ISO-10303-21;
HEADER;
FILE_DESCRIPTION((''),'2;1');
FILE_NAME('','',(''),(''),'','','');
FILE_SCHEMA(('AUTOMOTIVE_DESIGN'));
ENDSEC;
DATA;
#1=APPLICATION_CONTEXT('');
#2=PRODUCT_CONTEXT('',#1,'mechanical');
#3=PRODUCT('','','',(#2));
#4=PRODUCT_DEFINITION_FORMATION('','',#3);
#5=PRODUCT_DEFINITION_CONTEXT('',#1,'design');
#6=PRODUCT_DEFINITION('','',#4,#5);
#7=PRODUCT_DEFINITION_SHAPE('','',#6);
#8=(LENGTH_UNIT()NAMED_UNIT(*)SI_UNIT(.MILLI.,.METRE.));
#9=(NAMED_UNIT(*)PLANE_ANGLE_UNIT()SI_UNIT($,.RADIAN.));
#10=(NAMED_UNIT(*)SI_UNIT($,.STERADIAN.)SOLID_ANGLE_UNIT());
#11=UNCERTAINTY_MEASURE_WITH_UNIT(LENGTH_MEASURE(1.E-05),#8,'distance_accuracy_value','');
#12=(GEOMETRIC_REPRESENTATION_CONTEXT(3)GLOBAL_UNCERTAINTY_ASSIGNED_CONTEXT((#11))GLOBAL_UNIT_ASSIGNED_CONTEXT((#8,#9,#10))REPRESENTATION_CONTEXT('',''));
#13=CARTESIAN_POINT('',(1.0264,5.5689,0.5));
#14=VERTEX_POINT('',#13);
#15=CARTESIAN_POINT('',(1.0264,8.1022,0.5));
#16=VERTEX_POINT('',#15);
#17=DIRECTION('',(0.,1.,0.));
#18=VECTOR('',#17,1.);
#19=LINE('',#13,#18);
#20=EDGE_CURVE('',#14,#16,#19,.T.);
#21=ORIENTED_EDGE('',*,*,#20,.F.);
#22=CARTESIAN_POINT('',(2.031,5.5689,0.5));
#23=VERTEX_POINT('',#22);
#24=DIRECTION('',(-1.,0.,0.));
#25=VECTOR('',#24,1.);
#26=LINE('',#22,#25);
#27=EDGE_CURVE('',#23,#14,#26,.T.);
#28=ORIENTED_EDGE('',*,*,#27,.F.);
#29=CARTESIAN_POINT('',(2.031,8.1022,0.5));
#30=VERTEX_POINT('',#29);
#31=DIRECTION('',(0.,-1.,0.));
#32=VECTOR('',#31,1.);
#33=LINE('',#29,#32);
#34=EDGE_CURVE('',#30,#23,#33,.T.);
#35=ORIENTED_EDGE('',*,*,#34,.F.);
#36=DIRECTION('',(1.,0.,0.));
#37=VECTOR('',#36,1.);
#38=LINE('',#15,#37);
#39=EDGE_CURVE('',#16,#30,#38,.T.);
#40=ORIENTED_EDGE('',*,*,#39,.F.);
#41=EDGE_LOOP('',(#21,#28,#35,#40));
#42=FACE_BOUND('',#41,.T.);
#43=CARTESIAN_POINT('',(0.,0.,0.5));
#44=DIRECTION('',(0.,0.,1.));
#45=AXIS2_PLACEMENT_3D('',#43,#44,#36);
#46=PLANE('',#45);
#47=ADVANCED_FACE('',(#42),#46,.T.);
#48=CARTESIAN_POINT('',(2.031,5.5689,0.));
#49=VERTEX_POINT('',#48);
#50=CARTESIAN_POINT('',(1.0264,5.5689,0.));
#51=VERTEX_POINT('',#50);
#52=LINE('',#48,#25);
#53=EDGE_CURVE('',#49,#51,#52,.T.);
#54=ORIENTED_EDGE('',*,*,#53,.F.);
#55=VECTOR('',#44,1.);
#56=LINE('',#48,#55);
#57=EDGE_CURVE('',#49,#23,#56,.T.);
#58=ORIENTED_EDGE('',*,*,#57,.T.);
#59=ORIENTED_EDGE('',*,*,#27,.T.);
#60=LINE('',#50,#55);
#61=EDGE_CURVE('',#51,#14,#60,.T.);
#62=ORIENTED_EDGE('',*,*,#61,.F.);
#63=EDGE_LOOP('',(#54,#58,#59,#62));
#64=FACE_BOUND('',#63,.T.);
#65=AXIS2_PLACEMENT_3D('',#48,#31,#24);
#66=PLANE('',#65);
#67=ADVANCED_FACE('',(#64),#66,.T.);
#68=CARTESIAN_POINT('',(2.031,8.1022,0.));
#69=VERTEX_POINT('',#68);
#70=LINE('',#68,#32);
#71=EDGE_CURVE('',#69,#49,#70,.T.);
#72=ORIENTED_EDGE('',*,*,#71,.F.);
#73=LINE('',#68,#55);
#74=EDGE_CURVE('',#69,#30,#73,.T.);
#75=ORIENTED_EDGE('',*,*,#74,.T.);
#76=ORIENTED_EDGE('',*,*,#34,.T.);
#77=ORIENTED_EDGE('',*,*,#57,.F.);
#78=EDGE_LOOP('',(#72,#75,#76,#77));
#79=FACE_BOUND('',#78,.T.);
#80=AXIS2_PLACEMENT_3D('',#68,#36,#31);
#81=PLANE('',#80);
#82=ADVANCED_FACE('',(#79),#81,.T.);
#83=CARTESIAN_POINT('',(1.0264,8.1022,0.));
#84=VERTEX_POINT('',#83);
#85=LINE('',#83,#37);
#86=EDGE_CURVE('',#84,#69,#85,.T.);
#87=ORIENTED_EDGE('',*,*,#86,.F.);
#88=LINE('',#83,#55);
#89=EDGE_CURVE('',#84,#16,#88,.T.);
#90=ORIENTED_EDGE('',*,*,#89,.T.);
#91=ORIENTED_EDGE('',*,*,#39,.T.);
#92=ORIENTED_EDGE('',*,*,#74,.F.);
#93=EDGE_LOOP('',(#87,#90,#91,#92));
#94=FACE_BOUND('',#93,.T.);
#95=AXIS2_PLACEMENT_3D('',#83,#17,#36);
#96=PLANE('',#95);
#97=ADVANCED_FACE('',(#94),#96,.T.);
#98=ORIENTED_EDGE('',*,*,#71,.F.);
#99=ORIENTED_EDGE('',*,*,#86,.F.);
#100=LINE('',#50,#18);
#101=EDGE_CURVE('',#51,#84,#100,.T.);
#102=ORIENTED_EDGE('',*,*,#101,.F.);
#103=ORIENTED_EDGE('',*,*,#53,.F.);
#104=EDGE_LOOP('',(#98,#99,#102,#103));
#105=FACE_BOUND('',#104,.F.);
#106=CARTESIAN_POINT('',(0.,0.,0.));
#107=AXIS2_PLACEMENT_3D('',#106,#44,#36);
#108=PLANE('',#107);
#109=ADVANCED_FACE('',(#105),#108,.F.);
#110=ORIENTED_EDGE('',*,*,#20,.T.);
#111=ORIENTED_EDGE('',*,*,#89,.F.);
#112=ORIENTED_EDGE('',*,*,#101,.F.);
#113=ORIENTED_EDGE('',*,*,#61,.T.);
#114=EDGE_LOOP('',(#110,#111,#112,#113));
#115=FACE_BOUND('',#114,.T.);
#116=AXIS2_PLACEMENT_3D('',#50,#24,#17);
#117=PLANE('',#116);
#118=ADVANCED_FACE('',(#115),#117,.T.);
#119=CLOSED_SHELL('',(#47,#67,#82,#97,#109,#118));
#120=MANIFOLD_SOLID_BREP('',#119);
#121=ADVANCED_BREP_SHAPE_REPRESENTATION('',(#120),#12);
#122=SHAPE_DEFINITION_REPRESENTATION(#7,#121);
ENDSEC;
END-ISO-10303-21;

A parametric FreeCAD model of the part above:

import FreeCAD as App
import Part
import Sketcher

V = App.Vector

doc = App.newDocument("Part")
params = doc.addObject("Spreadsheet::Sheet", "Params")
for row, (alias, value) in enumerate([
    ("pad1_length", "0.5 mm"),
], start=1):
    params.set(f"A{row}", alias)
    params.set(f"B{row}", "=" + value)
    params.setAlias(f"B{row}", alias)

body = doc.addObject("PartDesign::Body", "Body")

# Sketch on XY plane
sketch1 = doc.addObject("Sketcher::SketchObject", "Sketch")
body.addObject(sketch1)
sketch1.AttachmentSupport = (doc.XY_Plane, [""])
sketch1.MapMode = "FlatFace"
sketch1.addGeometry(Part.LineSegment(V(2, 8.1, 0), V(1, 8.1, 0)), False)
sketch1.addGeometry(Part.LineSegment(V(1, 8.1, 0), V(1, 5.6, 0)), False)
sketch1.addGeometry(Part.LineSegment(V(1, 5.6, 0), V(2, 5.6, 0)), False)
sketch1.addGeometry(Part.LineSegment(V(2, 5.6, 0), V(2, 8.1, 0)), False)
sketch1.addConstraint(Sketcher.Constraint("Coincident", 0, 2, 1, 1))
sketch1.addConstraint(Sketcher.Constraint("Coincident", 1, 2, 2, 1))
sketch1.addConstraint(Sketcher.Constraint("Coincident", 2, 2, 3, 1))
sketch1.addConstraint(Sketcher.Constraint("Coincident", 3, 2, 0, 1))
sketch1.addConstraint(Sketcher.Constraint("Horizontal", 0))
sketch1.addConstraint(Sketcher.Constraint("Vertical", 1))
sketch1.addConstraint(Sketcher.Constraint("Horizontal", 2))
sketch1.addConstraint(Sketcher.Constraint("Vertical", 3))
sketch1.addConstraint(Sketcher.Constraint("DistanceX", 0, 2, 0, 1, 1.0046))
sketch1.addConstraint(Sketcher.Constraint("DistanceY", 1, 2, 1, 1, 2.5333))
sketch1.addConstraint(Sketcher.Constraint("DistanceY", -1, 1, 1, 2, 5.569))
sketch1.addConstraint(Sketcher.Constraint("DistanceX", -1, 1, 2, 2, 2.031))
pad1 = doc.addObject("PartDesign::Pad", "Pad")
body.addObject(pad1)
pad1.Profile = sketch1
pad1.setExpression("Length", "Params.pad1_length")

doc.recompute()
